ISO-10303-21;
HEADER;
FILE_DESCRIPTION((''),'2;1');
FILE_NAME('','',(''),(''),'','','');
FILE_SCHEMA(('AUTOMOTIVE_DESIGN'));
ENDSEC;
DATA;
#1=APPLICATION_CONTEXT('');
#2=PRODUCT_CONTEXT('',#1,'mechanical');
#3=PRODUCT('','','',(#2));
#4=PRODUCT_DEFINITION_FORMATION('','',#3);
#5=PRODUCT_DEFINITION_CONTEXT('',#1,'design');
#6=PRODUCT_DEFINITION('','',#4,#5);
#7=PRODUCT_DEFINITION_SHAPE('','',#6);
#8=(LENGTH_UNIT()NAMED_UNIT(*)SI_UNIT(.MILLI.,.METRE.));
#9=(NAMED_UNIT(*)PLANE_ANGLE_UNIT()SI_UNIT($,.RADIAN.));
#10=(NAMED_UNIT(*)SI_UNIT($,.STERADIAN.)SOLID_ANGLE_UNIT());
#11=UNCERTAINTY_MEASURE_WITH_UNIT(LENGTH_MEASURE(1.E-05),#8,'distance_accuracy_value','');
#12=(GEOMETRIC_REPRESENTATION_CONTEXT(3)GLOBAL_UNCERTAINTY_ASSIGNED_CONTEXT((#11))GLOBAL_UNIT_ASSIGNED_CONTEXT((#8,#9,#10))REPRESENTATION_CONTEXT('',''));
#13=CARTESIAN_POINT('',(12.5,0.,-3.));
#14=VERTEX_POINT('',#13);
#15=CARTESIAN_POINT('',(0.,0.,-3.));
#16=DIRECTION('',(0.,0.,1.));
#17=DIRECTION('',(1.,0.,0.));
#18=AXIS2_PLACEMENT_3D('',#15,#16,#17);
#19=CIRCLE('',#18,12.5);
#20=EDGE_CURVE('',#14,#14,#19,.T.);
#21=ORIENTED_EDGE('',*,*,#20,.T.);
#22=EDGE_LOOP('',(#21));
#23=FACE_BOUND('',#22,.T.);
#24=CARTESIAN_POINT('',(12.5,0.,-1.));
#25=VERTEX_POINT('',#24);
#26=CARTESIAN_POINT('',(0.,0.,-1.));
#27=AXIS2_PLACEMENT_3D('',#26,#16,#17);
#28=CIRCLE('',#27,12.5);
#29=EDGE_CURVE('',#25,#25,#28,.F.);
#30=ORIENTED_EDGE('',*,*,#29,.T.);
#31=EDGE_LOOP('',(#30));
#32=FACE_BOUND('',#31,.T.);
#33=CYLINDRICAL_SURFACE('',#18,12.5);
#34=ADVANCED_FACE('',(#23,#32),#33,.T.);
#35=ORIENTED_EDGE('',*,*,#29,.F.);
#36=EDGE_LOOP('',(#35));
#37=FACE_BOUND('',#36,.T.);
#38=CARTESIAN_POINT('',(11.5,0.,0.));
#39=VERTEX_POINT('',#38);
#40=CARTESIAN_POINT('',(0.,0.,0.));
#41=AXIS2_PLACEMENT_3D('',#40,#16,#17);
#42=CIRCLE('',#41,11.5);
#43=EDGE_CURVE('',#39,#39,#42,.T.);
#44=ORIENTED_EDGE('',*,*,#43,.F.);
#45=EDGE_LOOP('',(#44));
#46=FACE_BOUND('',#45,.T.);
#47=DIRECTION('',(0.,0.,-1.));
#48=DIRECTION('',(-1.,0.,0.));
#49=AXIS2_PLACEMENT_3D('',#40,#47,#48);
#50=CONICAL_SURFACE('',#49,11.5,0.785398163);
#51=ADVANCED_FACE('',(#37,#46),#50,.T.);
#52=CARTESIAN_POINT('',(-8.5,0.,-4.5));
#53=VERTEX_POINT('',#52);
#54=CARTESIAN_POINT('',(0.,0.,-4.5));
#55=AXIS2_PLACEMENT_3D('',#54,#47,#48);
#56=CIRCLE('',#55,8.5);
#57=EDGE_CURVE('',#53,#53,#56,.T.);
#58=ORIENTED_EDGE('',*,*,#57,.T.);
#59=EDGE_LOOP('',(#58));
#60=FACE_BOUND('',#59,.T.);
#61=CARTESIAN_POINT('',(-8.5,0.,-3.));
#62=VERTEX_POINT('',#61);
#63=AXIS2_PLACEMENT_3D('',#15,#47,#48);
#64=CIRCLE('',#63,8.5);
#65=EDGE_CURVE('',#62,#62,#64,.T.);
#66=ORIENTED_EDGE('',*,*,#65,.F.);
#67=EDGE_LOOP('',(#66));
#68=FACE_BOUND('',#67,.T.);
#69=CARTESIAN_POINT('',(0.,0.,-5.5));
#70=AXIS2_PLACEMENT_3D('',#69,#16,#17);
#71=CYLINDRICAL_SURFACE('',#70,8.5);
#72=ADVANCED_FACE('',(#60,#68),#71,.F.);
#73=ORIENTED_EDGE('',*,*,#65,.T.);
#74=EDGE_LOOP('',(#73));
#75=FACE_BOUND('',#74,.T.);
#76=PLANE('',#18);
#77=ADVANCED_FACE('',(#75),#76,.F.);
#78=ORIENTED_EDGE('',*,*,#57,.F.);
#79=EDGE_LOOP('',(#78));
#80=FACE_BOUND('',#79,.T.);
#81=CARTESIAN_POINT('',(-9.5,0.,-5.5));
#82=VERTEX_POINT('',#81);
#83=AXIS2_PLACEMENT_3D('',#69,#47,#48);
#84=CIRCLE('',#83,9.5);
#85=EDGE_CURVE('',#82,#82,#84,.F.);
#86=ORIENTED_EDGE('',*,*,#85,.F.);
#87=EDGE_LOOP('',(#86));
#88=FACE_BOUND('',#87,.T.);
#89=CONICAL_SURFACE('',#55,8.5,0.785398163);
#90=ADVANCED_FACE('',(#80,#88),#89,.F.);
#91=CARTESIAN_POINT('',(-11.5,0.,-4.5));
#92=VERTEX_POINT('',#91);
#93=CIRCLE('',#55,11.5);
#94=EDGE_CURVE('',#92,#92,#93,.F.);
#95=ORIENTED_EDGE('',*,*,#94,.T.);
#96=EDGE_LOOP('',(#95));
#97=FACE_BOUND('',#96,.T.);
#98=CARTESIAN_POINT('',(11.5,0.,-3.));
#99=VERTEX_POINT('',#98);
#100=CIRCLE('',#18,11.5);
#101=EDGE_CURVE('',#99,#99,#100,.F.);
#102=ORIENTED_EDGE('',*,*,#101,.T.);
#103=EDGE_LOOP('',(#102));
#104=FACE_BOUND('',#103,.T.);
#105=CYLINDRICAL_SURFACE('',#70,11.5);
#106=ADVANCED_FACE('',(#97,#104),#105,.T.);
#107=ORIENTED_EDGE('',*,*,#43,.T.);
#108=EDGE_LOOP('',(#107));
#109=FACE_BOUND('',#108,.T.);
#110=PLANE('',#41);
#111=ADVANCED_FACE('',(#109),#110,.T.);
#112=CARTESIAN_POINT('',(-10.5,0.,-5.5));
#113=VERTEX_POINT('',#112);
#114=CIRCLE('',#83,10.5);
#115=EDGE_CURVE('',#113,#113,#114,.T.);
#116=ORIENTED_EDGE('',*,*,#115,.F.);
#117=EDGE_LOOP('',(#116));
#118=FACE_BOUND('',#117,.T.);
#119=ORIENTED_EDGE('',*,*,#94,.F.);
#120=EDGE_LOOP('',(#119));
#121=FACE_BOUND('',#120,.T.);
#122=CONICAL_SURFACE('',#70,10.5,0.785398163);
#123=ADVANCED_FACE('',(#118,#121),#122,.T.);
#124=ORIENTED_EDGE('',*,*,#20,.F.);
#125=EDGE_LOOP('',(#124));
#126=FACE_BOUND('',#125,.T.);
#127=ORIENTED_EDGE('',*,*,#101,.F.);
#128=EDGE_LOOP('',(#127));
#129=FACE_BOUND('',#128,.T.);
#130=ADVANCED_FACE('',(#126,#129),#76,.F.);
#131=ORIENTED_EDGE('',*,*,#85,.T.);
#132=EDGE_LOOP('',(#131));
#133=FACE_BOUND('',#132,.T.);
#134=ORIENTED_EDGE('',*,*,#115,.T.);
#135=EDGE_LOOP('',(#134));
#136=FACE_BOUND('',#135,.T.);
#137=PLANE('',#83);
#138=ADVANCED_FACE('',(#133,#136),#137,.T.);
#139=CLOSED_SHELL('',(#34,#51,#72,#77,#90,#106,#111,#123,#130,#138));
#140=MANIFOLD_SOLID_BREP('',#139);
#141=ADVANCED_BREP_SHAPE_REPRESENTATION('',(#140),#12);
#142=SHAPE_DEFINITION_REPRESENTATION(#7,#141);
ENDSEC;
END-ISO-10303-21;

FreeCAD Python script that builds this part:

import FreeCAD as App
import Part
import Sketcher

V = App.Vector


def edges_at(feature, points):
    """Names of the edges that pass closest to the given points."""
    edges = feature.Shape.Edges
    near = lambda p: min(range(len(edges)), key=lambda i: edges[i].distToShape(Part.Vertex(*p))[0])
    return sorted({f"Edge{near(p) + 1}" for p in points})

doc = App.newDocument("Part")
body = doc.addObject("PartDesign::Body", "Body")

sketch1 = body.newObject("Sketcher::SketchObject", "Sketch")
sketch1.AttachmentSupport = (doc.getObject("XY_Plane"), [""])
sketch1.MapMode = "FlatFace"
sketch1.addGeometry(Part.Circle(V(0, 0, 0), V(0, 0, 1), 12), False)
sketch1.addConstraint(Sketcher.Constraint("Coincident", 0, 3, -1, 1))
sketch1.addConstraint(Sketcher.Constraint("Diameter", 0, 25.0))
pad1 = body.newObject("PartDesign::Pad", "Pad")
pad1.Profile = sketch1
pad1.Length = 3
pad1.Reversed = True

sketch2 = body.newObject("Sketcher::SketchObject", "Sketch001")
sketch2.AttachmentSupport = (doc.getObject("XY_Plane"), [""])
sketch2.MapMode = "FlatFace"
sketch2.AttachmentOffset = App.Placement(V(0, 0, -3), App.Rotation())
sketch2.addGeometry(Part.Circle(V(0, 0, 0), V(0, 0, 1), 12), False)
sketch2.addGeometry(Part.Circle(V(0, 0, 0), V(0, 0, 1), 8), False)
sketch2.addConstraint(Sketcher.Constraint("Coincident", 0, 3, -1, 1))
sketch2.addConstraint(Sketcher.Constraint("Coincident", 1, 3, -1, 1))
sketch2.addConstraint(Sketcher.Constraint("Diameter", 0, 23.0))
sketch2.addConstraint(Sketcher.Constraint("Diameter", 1, 17.0))
pad2 = body.newObject("PartDesign::Pad", "Pad001")
pad2.Profile = sketch2
pad2.Length = 2.5
pad2.Reversed = True
doc.recompute()

chamfer = body.newObject("PartDesign::Chamfer", "Chamfer")
chamfer.Base = (pad2, edges_at(pad2, [(-12.5, 0, 0), (-11.5, 0, -5.5), (8.5, 0, -5.5)]))
chamfer.Size = 1

doc.recompute()
